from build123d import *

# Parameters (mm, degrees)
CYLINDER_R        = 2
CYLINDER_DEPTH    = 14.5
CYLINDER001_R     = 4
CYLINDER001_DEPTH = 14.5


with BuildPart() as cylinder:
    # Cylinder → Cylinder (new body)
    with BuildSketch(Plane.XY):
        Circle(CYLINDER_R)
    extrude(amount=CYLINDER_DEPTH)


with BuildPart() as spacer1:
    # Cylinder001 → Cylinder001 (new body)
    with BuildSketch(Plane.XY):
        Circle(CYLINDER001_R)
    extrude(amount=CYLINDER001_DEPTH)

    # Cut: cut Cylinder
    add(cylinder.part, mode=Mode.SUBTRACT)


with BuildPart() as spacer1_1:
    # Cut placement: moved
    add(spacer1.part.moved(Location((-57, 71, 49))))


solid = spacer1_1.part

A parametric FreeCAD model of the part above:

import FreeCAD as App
import Part
import Sketcher

V = App.Vector

doc = App.newDocument("Part")
params = doc.addObject("Spreadsheet::Sheet", "Params")
for row, (alias, value) in enumerate([
    ("sketch1_diameter", "4 mm"),
    ("pad1_length", "14.5 mm"),
    ("sketch2_diameter", "8 mm"),
    ("pad2_length", "14.5 mm"),
], start=1):
    params.set(f"A{row}", alias)
    params.set(f"B{row}", "=" + value)
    params.setAlias(f"B{row}", alias)

body = doc.addObject("PartDesign::Body", "Body")

sketch1 = doc.addObject("Sketcher::SketchObject", "Sketch")
body.addObject(sketch1)
sketch1.AttachmentSupport = (doc.XY_Plane, [""])
sketch1.MapMode = "FlatFace"
sketch1.addGeometry(Part.Circle(V(0, 0, 0), V(0, 0, 1), 2), False)
sketch1.addConstraint([
    Sketcher.Constraint("Coincident", 0, 3, -1, 1),
    Sketcher.Constraint("Diameter", 0, 4.0),
])
sketch1.setExpression("Constraints[1]", "Params.sketch1_diameter")
pad1 = doc.addObject("PartDesign::Pad", "Pad")
body.addObject(pad1)
pad1.Profile = sketch1
pad1.setExpression("Length", "Params.pad1_length")
body2 = doc.addObject("PartDesign::Body", "Body001")

sketch2 = doc.addObject("Sketcher::SketchObject", "Sketch001")
body2.addObject(sketch2)
sketch2.AttachmentSupport = (doc.getObject("XY_Plane001"), [""])
sketch2.MapMode = "FlatFace"
sketch2.addGeometry(Part.Circle(V(0, 0, 0), V(0, 0, 1), 4), False)
sketch2.addConstraint([
    Sketcher.Constraint("Coincident", 0, 3, -1, 1),
    Sketcher.Constraint("Diameter", 0, 8.0),
])
sketch2.setExpression("Constraints[1]", "Params.sketch2_diameter")
pad2 = doc.addObject("PartDesign::Pad", "Pad001")
body2.addObject(pad2)
pad2.Profile = sketch2
pad2.setExpression("Length", "Params.pad2_length")
doc.recompute()

boolean = doc.addObject("PartDesign::Boolean", "Boolean")
body2.addObject(boolean)
boolean.Type = "Cut"
boolean.addObjects([body])
body3 = doc.addObject("PartDesign::Body", "Body002")
doc.recompute()

body2.Placement = App.Placement(V(-57, 71, 49), App.Rotation(V(0, 0, 1), 0))
boolean2 = doc.addObject("PartDesign::Boolean", "Boolean001")
body3.addObject(boolean2)
boolean2.Type = "Fuse"
boolean2.addObjects([body2])

doc.recompute()
